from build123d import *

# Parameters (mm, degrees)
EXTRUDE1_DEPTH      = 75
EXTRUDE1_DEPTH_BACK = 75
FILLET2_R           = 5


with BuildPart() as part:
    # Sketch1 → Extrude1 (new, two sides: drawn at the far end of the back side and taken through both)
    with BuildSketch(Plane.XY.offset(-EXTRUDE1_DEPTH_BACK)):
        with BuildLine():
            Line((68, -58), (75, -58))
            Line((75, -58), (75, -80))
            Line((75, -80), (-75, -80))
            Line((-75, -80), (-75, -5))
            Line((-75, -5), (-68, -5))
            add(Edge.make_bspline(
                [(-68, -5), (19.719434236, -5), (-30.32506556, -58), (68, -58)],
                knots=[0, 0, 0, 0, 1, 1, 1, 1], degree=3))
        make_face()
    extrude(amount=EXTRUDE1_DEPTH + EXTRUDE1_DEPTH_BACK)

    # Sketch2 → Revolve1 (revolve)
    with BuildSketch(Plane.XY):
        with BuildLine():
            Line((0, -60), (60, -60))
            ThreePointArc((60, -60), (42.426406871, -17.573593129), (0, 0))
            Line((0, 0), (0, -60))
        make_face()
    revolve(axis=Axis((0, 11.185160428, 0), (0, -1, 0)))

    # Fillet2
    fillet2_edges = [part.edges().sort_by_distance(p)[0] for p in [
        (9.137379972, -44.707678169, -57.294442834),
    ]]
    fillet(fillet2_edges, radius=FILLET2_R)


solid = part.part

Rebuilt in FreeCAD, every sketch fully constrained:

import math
import FreeCAD as App
import Part
import Sketcher

V = App.Vector


def edges_at(feature, points):
    """Names of the edges that pass closest to the given points."""
    edges = feature.Shape.Edges
    near = lambda p: min(range(len(edges)), key=lambda i: edges[i].distToShape(Part.Vertex(*p))[0])
    return sorted({f"Edge{near(p) + 1}" for p in points})

doc = App.newDocument("Part")
body = doc.addObject("PartDesign::Body", "Body")

# Sketch on XY plane
sketch1 = body.newObject("Sketcher::SketchObject", "Sketch")
sketch1.AttachmentSupport = (doc.getObject("XY_Plane"), [""])
sketch1.MapMode = "FlatFace"
sketch1.addGeometry([
    Part.LineSegment(V(75, -58, 0), V(68, -58, 0)),  # 0
    Part.BSplineCurve([V(-68, -5, 0), V(19.719434, -5, 0), V(-30.325066, -58, 0), V(68, -58, 0)], [4, 4], [0, 1], False, 3, [1, 1, 1, 1], False),  # 1
    Part.LineSegment(V(-68, -5, 0), V(-75, -5, 0)),  # 2
    Part.LineSegment(V(-75, -5, 0), V(-75, -80, 0)),  # 3
    Part.LineSegment(V(-75, -80, 0), V(75, -80, 0)),  # 4
    Part.LineSegment(V(75, -80, 0), V(75, -58, 0)),  # 5
], False)
sketch1.addConstraint([
    Sketcher.Constraint("Block", 1),
    Sketcher.Constraint("Coincident", 0, 2, 1, 2),
    Sketcher.Constraint("Coincident", 1, 1, 2, 1),
    Sketcher.Constraint("Coincident", 2, 2, 3, 1),
    Sketcher.Constraint("Coincident", 3, 2, 4, 1),
    Sketcher.Constraint("Coincident", 4, 2, 5, 1),
    Sketcher.Constraint("Coincident", 5, 2, 0, 1),
    Sketcher.Constraint("Horizontal", 0),
    Sketcher.Constraint("Horizontal", 2),
    Sketcher.Constraint("Vertical", 3),
    Sketcher.Constraint("Horizontal", 4),
    Sketcher.Constraint("Vertical", 5),
    Sketcher.Constraint("Equal", 0, 2),
    Sketcher.Constraint("DistanceX", 0, 2, 0, 1, 7.0),
    Sketcher.Constraint("DistanceY", 3, 2, 3, 1, 75.0),
])
pad1 = body.newObject("PartDesign::Pad", "Pad")
pad1.Profile = sketch1
pad1.Type = "TwoLengths"
pad1.Length = 75
pad1.Length2 = 75

# Sketch on XY plane
sketch2 = body.newObject("Sketcher::SketchObject", "Sketch001")
sketch2.AttachmentSupport = (doc.getObject("XY_Plane"), [""])
sketch2.MapMode = "FlatFace"
sketch2.addGeometry([
    Part.LineSegment(V(0, -60, 0), V(60, -60, 0)),
    Part.ArcOfCircle(Part.Circle(V(0, -60, 0), V(0, 0, 1), 60), math.radians(0), math.radians(90)),
    Part.LineSegment(V(0, 0, 0), V(0, -60, 0)),
], False)
sketch2.addConstraint([
    Sketcher.Constraint("Coincident", 0, 2, 1, 1),
    Sketcher.Constraint("Coincident", 1, 2, 2, 1),
    Sketcher.Constraint("Coincident", 2, 2, 0, 1),
    Sketcher.Constraint("Horizontal", 0),
    Sketcher.Constraint("Vertical", 2),
    Sketcher.Constraint("Coincident", 1, 2, -1, 1),
    Sketcher.Constraint("Coincident", 2, 2, 1, 3),
    Sketcher.Constraint("Radius", 1, 60.0),
])
revolution = body.newObject("PartDesign::Revolution", "Revolution")
revolution.Profile = sketch2
revolution.ReferenceAxis = (sketch2, ["V_Axis"])
revolution.Angle = 360
doc.recompute()

fillet = body.newObject("PartDesign::Fillet", "Fillet")
fillet.Base = (revolution, edges_at(revolution, [(-32.418, -9.512, 0)]))
fillet.Radius = 5

doc.recompute()
